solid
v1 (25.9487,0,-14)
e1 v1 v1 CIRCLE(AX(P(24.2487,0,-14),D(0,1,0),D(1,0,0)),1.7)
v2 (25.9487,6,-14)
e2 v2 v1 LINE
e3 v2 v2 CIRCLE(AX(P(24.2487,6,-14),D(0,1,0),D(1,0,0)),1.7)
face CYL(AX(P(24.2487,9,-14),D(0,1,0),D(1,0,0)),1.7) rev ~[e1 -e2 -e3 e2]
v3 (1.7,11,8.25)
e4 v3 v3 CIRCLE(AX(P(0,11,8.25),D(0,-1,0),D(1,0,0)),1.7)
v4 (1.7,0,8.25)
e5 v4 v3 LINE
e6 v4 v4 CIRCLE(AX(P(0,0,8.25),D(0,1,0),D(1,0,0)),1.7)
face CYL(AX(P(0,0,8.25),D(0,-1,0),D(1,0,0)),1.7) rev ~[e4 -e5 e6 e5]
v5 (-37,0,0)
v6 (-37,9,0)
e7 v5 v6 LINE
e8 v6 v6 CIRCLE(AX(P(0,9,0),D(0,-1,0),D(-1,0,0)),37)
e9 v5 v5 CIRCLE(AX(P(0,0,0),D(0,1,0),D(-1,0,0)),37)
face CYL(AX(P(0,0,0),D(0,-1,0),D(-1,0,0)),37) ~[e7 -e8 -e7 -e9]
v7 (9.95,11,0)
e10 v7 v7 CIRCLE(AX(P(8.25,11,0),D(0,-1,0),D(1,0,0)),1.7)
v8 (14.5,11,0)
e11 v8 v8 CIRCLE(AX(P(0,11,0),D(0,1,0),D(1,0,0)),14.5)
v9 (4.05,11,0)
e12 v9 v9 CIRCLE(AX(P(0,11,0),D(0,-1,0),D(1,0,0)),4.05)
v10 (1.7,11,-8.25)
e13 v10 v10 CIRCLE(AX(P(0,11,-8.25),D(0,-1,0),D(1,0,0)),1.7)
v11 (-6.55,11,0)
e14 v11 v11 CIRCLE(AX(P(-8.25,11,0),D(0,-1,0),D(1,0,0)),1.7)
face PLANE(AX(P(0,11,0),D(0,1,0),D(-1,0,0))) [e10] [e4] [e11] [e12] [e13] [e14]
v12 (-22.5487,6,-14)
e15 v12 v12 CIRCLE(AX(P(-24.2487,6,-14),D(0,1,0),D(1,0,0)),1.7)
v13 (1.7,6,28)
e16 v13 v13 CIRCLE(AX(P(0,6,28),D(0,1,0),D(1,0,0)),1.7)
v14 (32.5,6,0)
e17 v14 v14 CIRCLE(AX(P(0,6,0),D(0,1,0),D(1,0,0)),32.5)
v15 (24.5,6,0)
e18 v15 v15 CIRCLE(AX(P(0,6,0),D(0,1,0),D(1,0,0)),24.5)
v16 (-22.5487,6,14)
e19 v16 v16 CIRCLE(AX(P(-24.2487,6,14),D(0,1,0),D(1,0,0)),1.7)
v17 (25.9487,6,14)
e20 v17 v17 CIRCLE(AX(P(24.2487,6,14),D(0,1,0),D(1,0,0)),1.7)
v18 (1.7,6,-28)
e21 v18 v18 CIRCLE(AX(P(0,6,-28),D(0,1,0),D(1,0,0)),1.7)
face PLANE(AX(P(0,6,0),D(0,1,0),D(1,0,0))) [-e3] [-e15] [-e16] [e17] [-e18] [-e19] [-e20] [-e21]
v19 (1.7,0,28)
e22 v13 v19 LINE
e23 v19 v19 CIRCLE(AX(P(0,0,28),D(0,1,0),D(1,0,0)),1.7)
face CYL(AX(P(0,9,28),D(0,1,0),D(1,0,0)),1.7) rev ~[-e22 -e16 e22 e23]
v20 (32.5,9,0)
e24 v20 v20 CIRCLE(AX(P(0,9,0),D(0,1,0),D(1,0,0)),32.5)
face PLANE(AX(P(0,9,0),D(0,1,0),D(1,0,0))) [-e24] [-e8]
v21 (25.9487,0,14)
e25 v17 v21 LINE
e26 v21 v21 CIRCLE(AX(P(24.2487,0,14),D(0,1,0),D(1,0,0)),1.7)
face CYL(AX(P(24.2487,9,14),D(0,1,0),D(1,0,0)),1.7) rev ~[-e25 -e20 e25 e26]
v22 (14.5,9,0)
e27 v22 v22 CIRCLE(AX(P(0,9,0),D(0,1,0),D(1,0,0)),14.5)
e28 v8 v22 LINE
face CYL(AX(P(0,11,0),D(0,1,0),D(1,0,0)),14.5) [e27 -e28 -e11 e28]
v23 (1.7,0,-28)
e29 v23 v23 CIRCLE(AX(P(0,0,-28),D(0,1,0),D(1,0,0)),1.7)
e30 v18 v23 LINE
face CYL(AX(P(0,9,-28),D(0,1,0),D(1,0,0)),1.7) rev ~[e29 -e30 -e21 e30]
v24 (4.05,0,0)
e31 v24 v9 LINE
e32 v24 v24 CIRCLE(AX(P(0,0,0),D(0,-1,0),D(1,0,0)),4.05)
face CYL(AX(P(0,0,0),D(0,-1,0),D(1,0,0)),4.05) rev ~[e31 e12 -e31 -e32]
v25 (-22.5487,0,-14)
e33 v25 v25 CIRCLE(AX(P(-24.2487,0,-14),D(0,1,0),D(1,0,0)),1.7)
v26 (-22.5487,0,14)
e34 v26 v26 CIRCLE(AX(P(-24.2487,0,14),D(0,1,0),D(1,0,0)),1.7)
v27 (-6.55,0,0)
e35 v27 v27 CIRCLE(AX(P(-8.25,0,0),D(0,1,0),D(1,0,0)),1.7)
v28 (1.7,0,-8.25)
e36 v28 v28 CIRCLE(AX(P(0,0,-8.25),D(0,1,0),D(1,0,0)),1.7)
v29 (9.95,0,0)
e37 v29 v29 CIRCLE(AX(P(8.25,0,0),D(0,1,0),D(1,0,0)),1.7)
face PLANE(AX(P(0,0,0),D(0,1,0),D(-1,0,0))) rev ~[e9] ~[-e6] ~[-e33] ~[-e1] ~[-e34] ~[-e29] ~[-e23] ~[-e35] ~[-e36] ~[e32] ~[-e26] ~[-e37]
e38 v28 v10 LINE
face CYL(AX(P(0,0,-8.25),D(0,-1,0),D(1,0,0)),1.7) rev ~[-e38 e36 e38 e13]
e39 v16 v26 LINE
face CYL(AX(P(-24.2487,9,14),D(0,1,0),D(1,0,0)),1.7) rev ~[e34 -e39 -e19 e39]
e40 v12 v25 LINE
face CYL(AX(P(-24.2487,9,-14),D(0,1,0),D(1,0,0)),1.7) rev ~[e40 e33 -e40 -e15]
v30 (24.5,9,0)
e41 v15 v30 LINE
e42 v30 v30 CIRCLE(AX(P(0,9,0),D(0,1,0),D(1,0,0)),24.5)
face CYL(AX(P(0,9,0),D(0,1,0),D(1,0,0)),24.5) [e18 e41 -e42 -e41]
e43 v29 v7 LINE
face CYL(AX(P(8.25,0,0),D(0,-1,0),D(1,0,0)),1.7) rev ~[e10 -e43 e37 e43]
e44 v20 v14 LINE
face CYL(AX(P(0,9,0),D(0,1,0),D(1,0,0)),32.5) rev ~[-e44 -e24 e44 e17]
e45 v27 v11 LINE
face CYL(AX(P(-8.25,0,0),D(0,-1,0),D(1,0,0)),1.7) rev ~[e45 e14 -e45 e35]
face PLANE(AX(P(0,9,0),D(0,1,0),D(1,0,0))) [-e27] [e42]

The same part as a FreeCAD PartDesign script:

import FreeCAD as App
import Part
import Sketcher
Q = App.Units.Quantity

doc = App.newDocument("Part")
body = doc.addObject("PartDesign::Body", "Body")

sketch1 = doc.addObject("Sketcher::SketchObject", "Sketch")
body.addObject(sketch1)
sketch1.AttachmentSupport = (doc.XZ_Plane, [""])
sketch1.MapMode = "FlatFace"
sketch1.addGeometry(Part.Circle(App.Vector(0, 0, 0), App.Vector(0, 0, 1), 37), False)
sketch1.addConstraint(Sketcher.Constraint("Coincident", 0, 3, -1, 1))
sketch1.addConstraint(Sketcher.Constraint("Diameter", 0, Q("74 mm")))
pad1 = doc.addObject("PartDesign::Pad", "Pad")
body.addObject(pad1)
pad1.Profile = sketch1
pad1.Length = 11
pad1.Reversed = True

sketch2 = doc.addObject("Sketcher::SketchObject", "Sketch001")
body.addObject(sketch2)
sketch2.AttachmentSupport = (doc.XZ_Plane, [""])
sketch2.MapMode = "FlatFace"
sketch2.addGeometry(Part.Circle(App.Vector(8.25, 0, 0), App.Vector(0, 0, 1), 1.7), False)
sketch2.addGeometry(Part.Circle(App.Vector(0, 8.25, 0), App.Vector(0, 0, 1), 1.7), False)
sketch2.addGeometry(Part.Circle(App.Vector(0, -8.25, 0), App.Vector(0, 0, 1), 1.7), False)
sketch2.addGeometry(Part.Circle(App.Vector(-8.25, 0, 0), App.Vector(0, 0, 1), 1.7), False)
sketch2.addConstraint(Sketcher.Constraint("Equal", 0, 1))
sketch2.addConstraint(Sketcher.Constraint("Equal", 1, 2))
sketch2.addConstraint(Sketcher.Constraint("Equal", 2, 3))
sketch2.addConstraint(Sketcher.Constraint("Symmetric", 1, 3, 2, 3, -1, 1))
sketch2.addConstraint(Sketcher.Constraint("Symmetric", 0, 3, 3, 3, -1, 1))
sketch2.addConstraint(Sketcher.Constraint("PointOnObject", 0, 3, -1))
sketch2.addConstraint(Sketcher.Constraint("PointOnObject", 1, 3, -2))
sketch2.addConstraint(Sketcher.Constraint("Diameter", 0, Q("3.4 mm")))
sketch2.addConstraint(Sketcher.Constraint("DistanceY", 2, 3, 1, 3, Q("16.5 mm")))
sketch2.addConstraint(Sketcher.Constraint("DistanceX", 3, 3, 0, 3, Q("16.5 mm")))
pocket1 = doc.addObject("PartDesign::Pocket", "Pocket")
body.addObject(pocket1)
pocket1.Profile = sketch2
pocket1.Type = "ThroughAll"

sketch3 = doc.addObject("Sketcher::SketchObject", "Sketch002")
body.addObject(sketch3)
sketch3.AttachmentSupport = (doc.XZ_Plane, [""])
sketch3.MapMode = "FlatFace"
sketch3.addGeometry(Part.Circle(App.Vector(0, 0, 0), App.Vector(0, 0, 1), 4.05), False)
sketch3.addConstraint(Sketcher.Constraint("Coincident", 0, 3, -1, 1))
sketch3.addConstraint(Sketcher.Constraint("Diameter", 0, Q("8.1 mm")))
pocket2 = doc.addObject("PartDesign::Pocket", "Pocket001")
body.addObject(pocket2)
pocket2.Profile = sketch3
pocket2.Type = "ThroughAll"

sketch4 = doc.addObject("Sketcher::SketchObject", "Sketch003")
body.addObject(sketch4)
sketch4.AttachmentSupport = (doc.XZ_Plane, [""])
sketch4.MapMode = "FlatFace"
sketch4.AttachmentOffset = App.Placement(App.Vector(0, 0, -11), App.Rotation())
sketch4.addGeometry(Part.Circle(App.Vector(0, 0, 0), App.Vector(0, 0, 1), 37), False)
sketch4.addGeometry(Part.Circle(App.Vector(0, 0, 0), App.Vector(0, 0, 1), 24.5), False)
sketch4.addConstraint(Sketcher.Constraint("Coincident", 0, 3, -1, 1))
sketch4.addConstraint(Sketcher.Constraint("Coincident", 1, 3, -1, 1))
sketch4.addConstraint(Sketcher.Constraint("Diameter", 0, Q("74 mm")))
sketch4.addConstraint(Sketcher.Constraint("Diameter", 1, Q("49 mm")))
pocket3 = doc.addObject("PartDesign::Pocket", "Pocket002")
body.addObject(pocket3)
pocket3.Profile = sketch4
pocket3.Length = 2
pocket3.Reversed = True

sketch5 = doc.addObject("Sketcher::SketchObject", "Sketch004")
body.addObject(sketch5)
sketch5.AttachmentSupport = (doc.XZ_Plane, [""])
sketch5.MapMode = "FlatFace"
sketch5.AttachmentOffset = App.Placement(App.Vector(0, 0, -9), App.Rotation())
sketch5.addGeometry(Part.Circle(App.Vector(24.2487, -14, 0), App.Vector(0, 0, 1), 1.7), False)
sketch5.addGeometry(Part.Circle(App.Vector(24.2487, 14, 0), App.Vector(0, 0, 1), 1.7), False)
sketch5.addGeometry(Part.Circle(App.Vector(0, -28, 0), App.Vector(0, 0, 1), 1.7), False)
sketch5.addGeometry(Part.Circle(App.Vector(0, 28, 0), App.Vector(0, 0, 1), 1.7), False)
sketch5.addGeometry(Part.Circle(App.Vector(-24.2487, -14, 0), App.Vector(0, 0, 1), 1.7), False)
sketch5.addGeometry(Part.Circle(App.Vector(-24.2487, 14, 0), App.Vector(0, 0, 1), 1.7), False)
sketch5.addConstraint(Sketcher.Constraint("Equal", 0, 1))
sketch5.addConstraint(Sketcher.Constraint("Equal", 1, 2))
sketch5.addConstraint(Sketcher.Constraint("Equal", 2, 3))
sketch5.addConstraint(Sketcher.Constraint("Equal", 3, 4))
sketch5.addConstraint(Sketcher.Constraint("Equal", 4, 5))
sketch5.addConstraint(Sketcher.Constraint("Symmetric", 2, 3, 3, 3, -1, 1))
sketch5.addConstraint(Sketcher.Constraint("Symmetric", 1, 3, 4, 3, -1, 1))
sketch5.addConstraint(Sketcher.Constraint("Symmetric", 0, 3, 5, 3, -1, 1))
sketch5.addConstraint(Sketcher.Constraint("Symmetric", 0, 3, 4, 3, -2))
sketch5.addConstraint(Sketcher.Constraint("PointOnObject", 2, 3, -2))
sketch5.addConstraint(Sketcher.Constraint("Diameter", 0, Q("3.4 mm")))
sketch5.addConstraint(Sketcher.Constraint("DistanceY", 2, 3, 3, 3, Q("56 mm")))
sketch5.addConstraint(Sketcher.Constraint("DistanceY", 0, 3, -1, 1, Q("14 mm")))
sketch5.addConstraint(Sketcher.Constraint("DistanceX", -1, 1, 0, 3, Q("24.2487 mm")))
pocket4 = doc.addObject("PartDesign::Pocket", "Pocket003")
body.addObject(pocket4)
pocket4.Profile = sketch5
pocket4.Type = "ThroughAll"
pocket4.Reversed = True

sketch6 = doc.addObject("Sketcher::SketchObject", "Sketch005")
body.addObject(sketch6)
sketch6.AttachmentSupport = (doc.XZ_Plane, [""])
sketch6.MapMode = "FlatFace"
sketch6.AttachmentOffset = App.Placement(App.Vector(0, 0, -9), App.Rotation())
sketch6.addGeometry(Part.Circle(App.Vector(0, 0, 0), App.Vector(0, 0, 1), 32.5), False)
sketch6.addGeometry(Part.Circle(App.Vector(0, 0, 0), App.Vector(0, 0, 1), 24.5), False)
sketch6.addConstraint(Sketcher.Constraint("Coincident", 0, 3, -1, 1))
sketch6.addConstraint(Sketcher.Constraint("Coincident", 1, 3, -1, 1))
sketch6.addConstraint(Sketcher.Constraint("Diameter", 0, Q("65 mm")))
sketch6.addConstraint(Sketcher.Constraint("Diameter", 1, Q("49 mm")))
pocket5 = doc.addObject("PartDesign::Pocket", "Pocket004")
body.addObject(pocket5)
pocket5.Profile = sketch6
pocket5.Length = 3
pocket5.Reversed = True

sketch7 = doc.addObject("Sketcher::SketchObject", "Sketch006")
body.addObject(sketch7)
sketch7.AttachmentSupport = (doc.XZ_Plane, [""])
sketch7.MapMode = "FlatFace"
sketch7.AttachmentOffset = App.Placement(App.Vector(0, 0, -11), App.Rotation())
sketch7.addGeometry(Part.Circle(App.Vector(0, 0, 0), App.Vector(0, 0, 1), 37), False)
sketch7.addGeometry(Part.Circle(App.Vector(0, 0, 0), App.Vector(0, 0, 1), 14.5), False)
sketch7.addConstraint(Sketcher.Constraint("Coincident", 0, 3, -1, 1))
sketch7.addConstraint(Sketcher.Constraint("Coincident", 1, 3, -1, 1))
sketch7.addConstraint(Sketcher.Constraint("Diameter", 1, Q("29 mm")))
sketch7.addConstraint(Sketcher.Constraint("Diameter", 0, Q("74 mm")))
pocket6 = doc.addObject("PartDesign::Pocket", "Pocket005")
body.addObject(pocket6)
pocket6.Profile = sketch7
pocket6.Length = 2
pocket6.Reversed = True

doc.recompute()
